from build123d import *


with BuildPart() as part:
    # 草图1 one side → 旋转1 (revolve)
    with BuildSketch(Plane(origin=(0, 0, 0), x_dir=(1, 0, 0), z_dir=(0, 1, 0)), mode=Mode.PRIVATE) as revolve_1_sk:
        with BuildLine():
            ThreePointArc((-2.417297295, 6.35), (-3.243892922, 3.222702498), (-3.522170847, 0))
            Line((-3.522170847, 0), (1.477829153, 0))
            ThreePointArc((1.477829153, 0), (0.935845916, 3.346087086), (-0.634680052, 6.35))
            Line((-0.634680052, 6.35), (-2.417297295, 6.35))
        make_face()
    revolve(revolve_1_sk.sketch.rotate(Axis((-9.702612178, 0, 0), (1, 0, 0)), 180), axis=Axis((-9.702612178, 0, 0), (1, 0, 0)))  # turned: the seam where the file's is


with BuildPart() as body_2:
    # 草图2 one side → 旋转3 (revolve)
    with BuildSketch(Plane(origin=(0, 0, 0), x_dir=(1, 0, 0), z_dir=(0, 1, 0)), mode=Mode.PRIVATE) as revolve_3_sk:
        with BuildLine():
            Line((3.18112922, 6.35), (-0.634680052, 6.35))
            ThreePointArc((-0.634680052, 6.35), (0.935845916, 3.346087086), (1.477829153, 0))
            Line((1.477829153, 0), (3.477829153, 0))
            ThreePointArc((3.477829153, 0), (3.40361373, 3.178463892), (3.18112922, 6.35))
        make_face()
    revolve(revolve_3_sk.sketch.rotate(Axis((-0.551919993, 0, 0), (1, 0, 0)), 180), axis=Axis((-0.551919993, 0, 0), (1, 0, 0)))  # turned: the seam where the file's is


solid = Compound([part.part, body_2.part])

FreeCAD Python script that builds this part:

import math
import FreeCAD as App
import Part
import Sketcher
from FreeCAD import Vector

doc = App.newDocument("Part")
body = doc.addObject("PartDesign::Body", "Body")

# Sketch on XZ plane
sketch1 = body.newObject("Sketcher::SketchObject", "Sketch")
sketch1.AttachmentSupport = (doc.getObject("XZ_Plane"), [""])
sketch1.MapMode = "FlatFace"
sketch1.addGeometry(Part.ArcOfCircle(Part.Circle(Vector(15.277829, 0, 0), Vector(0, 0, 1), 18.8), math.radians(180), math.radians(199.740822)), False)
sketch1.addGeometry(Part.LineSegment(Vector(-3.522171, 0, 0), Vector(1.477829, 0, 0)), False)
sketch1.addGeometry(Part.ArcOfCircle(Part.Circle(Vector(-9.122171, 0, 0), Vector(0, 0, 1), 10.6), math.radians(-36.802362), math.radians(0)), False)
sketch1.addGeometry(Part.LineSegment(Vector(-0.63468, -6.35, 0), Vector(-2.417297, -6.35, 0)), False)
sketch1.addConstraint(Sketcher.Constraint("Coincident", 0, 1, 1, 1))
sketch1.addConstraint(Sketcher.Constraint("Coincident", 1, 2, 2, 2))
sketch1.addConstraint(Sketcher.Constraint("Coincident", 2, 1, 3, 1))
sketch1.addConstraint(Sketcher.Constraint("Coincident", 3, 2, 0, 2))
sketch1.addConstraint(Sketcher.Constraint("Horizontal", 1))
sketch1.addConstraint(Sketcher.Constraint("Horizontal", 3))
sketch1.addConstraint(Sketcher.Constraint("PointOnObject", 0, 3, -1))
sketch1.addConstraint(Sketcher.Constraint("PointOnObject", 2, 3, -1))
sketch1.addConstraint(Sketcher.Constraint("PointOnObject", 0, 1, -1))
sketch1.addConstraint(Sketcher.Constraint("Radius", 0, 18.8))
sketch1.addConstraint(Sketcher.Constraint("Radius", 2, 10.6))
sketch1.addConstraint(Sketcher.Constraint("DistanceX", 1, 1, 1, 2, 5.0))
sketch1.addConstraint(Sketcher.Constraint("DistanceY", 2, 1, -1, 1, 6.35))
sketch1.addConstraint(Sketcher.Constraint("DistanceX", -1, 1, 0, 3, 15.277829))
revolution = body.newObject("PartDesign::Revolution", "Revolution")
revolution.Profile = sketch1
revolution.ReferenceAxis = (sketch1, ["H_Axis"])
revolution.Angle = 360
body2 = doc.addObject("PartDesign::Body", "Body001")

# Sketch on XZ plane
sketch2 = body2.newObject("Sketcher::SketchObject", "Sketch001")
sketch2.AttachmentSupport = (doc.getObject("XZ_Plane001"), [""])
sketch2.MapMode = "FlatFace"
sketch2.addGeometry(Part.LineSegment(Vector(3.181129, -6.35, 0), Vector(-0.63468, -6.35, 0)), False)
sketch2.addGeometry(Part.ArcOfCircle(Part.Circle(Vector(-9.122171, 0, 0), Vector(0, 0, 1), 10.6), math.radians(-36.802362), math.radians(0)), False)
sketch2.addGeometry(Part.LineSegment(Vector(1.477829, 0, 0), Vector(3.477829, 0, 0)), False)
sketch2.addGeometry(Part.ArcOfCircle(Part.Circle(Vector(-64.622171, 0, 0), Vector(0, 0, 1), 68.1), math.radians(-5.35033), math.radians(0)), False)
sketch2.addConstraint(Sketcher.Constraint("Coincident", 0, 2, 1, 1))
sketch2.addConstraint(Sketcher.Constraint("Coincident", 1, 2, 2, 1))
sketch2.addConstraint(Sketcher.Constraint("Coincident", 2, 2, 3, 2))
sketch2.addConstraint(Sketcher.Constraint("Coincident", 3, 1, 0, 1))
sketch2.addConstraint(Sketcher.Constraint("Horizontal", 0))
sketch2.addConstraint(Sketcher.Constraint("Horizontal", 2))
sketch2.addConstraint(Sketcher.Constraint("PointOnObject", 1, 3, -1))
sketch2.addConstraint(Sketcher.Constraint("PointOnObject", 3, 3, -1))
sketch2.addConstraint(Sketcher.Constraint("PointOnObject", 1, 2, -1))
sketch2.addConstraint(Sketcher.Constraint("Radius", 1, 10.6))
sketch2.addConstraint(Sketcher.Constraint("Radius", 3, 68.1))
sketch2.addConstraint(Sketcher.Constraint("DistanceX", 2, 1, 2, 2, 2.0))
sketch2.addConstraint(Sketcher.Constraint("DistanceY", 0, 2, -1, 1, 6.35))
sketch2.addConstraint(Sketcher.Constraint("DistanceX", 1, 3, -1, 1, 9.122171))
revolution2 = body2.newObject("PartDesign::Revolution", "Revolution001")
revolution2.Profile = sketch2
revolution2.ReferenceAxis = (sketch2, ["H_Axis"])
revolution2.Angle = 360

doc.recompute()
